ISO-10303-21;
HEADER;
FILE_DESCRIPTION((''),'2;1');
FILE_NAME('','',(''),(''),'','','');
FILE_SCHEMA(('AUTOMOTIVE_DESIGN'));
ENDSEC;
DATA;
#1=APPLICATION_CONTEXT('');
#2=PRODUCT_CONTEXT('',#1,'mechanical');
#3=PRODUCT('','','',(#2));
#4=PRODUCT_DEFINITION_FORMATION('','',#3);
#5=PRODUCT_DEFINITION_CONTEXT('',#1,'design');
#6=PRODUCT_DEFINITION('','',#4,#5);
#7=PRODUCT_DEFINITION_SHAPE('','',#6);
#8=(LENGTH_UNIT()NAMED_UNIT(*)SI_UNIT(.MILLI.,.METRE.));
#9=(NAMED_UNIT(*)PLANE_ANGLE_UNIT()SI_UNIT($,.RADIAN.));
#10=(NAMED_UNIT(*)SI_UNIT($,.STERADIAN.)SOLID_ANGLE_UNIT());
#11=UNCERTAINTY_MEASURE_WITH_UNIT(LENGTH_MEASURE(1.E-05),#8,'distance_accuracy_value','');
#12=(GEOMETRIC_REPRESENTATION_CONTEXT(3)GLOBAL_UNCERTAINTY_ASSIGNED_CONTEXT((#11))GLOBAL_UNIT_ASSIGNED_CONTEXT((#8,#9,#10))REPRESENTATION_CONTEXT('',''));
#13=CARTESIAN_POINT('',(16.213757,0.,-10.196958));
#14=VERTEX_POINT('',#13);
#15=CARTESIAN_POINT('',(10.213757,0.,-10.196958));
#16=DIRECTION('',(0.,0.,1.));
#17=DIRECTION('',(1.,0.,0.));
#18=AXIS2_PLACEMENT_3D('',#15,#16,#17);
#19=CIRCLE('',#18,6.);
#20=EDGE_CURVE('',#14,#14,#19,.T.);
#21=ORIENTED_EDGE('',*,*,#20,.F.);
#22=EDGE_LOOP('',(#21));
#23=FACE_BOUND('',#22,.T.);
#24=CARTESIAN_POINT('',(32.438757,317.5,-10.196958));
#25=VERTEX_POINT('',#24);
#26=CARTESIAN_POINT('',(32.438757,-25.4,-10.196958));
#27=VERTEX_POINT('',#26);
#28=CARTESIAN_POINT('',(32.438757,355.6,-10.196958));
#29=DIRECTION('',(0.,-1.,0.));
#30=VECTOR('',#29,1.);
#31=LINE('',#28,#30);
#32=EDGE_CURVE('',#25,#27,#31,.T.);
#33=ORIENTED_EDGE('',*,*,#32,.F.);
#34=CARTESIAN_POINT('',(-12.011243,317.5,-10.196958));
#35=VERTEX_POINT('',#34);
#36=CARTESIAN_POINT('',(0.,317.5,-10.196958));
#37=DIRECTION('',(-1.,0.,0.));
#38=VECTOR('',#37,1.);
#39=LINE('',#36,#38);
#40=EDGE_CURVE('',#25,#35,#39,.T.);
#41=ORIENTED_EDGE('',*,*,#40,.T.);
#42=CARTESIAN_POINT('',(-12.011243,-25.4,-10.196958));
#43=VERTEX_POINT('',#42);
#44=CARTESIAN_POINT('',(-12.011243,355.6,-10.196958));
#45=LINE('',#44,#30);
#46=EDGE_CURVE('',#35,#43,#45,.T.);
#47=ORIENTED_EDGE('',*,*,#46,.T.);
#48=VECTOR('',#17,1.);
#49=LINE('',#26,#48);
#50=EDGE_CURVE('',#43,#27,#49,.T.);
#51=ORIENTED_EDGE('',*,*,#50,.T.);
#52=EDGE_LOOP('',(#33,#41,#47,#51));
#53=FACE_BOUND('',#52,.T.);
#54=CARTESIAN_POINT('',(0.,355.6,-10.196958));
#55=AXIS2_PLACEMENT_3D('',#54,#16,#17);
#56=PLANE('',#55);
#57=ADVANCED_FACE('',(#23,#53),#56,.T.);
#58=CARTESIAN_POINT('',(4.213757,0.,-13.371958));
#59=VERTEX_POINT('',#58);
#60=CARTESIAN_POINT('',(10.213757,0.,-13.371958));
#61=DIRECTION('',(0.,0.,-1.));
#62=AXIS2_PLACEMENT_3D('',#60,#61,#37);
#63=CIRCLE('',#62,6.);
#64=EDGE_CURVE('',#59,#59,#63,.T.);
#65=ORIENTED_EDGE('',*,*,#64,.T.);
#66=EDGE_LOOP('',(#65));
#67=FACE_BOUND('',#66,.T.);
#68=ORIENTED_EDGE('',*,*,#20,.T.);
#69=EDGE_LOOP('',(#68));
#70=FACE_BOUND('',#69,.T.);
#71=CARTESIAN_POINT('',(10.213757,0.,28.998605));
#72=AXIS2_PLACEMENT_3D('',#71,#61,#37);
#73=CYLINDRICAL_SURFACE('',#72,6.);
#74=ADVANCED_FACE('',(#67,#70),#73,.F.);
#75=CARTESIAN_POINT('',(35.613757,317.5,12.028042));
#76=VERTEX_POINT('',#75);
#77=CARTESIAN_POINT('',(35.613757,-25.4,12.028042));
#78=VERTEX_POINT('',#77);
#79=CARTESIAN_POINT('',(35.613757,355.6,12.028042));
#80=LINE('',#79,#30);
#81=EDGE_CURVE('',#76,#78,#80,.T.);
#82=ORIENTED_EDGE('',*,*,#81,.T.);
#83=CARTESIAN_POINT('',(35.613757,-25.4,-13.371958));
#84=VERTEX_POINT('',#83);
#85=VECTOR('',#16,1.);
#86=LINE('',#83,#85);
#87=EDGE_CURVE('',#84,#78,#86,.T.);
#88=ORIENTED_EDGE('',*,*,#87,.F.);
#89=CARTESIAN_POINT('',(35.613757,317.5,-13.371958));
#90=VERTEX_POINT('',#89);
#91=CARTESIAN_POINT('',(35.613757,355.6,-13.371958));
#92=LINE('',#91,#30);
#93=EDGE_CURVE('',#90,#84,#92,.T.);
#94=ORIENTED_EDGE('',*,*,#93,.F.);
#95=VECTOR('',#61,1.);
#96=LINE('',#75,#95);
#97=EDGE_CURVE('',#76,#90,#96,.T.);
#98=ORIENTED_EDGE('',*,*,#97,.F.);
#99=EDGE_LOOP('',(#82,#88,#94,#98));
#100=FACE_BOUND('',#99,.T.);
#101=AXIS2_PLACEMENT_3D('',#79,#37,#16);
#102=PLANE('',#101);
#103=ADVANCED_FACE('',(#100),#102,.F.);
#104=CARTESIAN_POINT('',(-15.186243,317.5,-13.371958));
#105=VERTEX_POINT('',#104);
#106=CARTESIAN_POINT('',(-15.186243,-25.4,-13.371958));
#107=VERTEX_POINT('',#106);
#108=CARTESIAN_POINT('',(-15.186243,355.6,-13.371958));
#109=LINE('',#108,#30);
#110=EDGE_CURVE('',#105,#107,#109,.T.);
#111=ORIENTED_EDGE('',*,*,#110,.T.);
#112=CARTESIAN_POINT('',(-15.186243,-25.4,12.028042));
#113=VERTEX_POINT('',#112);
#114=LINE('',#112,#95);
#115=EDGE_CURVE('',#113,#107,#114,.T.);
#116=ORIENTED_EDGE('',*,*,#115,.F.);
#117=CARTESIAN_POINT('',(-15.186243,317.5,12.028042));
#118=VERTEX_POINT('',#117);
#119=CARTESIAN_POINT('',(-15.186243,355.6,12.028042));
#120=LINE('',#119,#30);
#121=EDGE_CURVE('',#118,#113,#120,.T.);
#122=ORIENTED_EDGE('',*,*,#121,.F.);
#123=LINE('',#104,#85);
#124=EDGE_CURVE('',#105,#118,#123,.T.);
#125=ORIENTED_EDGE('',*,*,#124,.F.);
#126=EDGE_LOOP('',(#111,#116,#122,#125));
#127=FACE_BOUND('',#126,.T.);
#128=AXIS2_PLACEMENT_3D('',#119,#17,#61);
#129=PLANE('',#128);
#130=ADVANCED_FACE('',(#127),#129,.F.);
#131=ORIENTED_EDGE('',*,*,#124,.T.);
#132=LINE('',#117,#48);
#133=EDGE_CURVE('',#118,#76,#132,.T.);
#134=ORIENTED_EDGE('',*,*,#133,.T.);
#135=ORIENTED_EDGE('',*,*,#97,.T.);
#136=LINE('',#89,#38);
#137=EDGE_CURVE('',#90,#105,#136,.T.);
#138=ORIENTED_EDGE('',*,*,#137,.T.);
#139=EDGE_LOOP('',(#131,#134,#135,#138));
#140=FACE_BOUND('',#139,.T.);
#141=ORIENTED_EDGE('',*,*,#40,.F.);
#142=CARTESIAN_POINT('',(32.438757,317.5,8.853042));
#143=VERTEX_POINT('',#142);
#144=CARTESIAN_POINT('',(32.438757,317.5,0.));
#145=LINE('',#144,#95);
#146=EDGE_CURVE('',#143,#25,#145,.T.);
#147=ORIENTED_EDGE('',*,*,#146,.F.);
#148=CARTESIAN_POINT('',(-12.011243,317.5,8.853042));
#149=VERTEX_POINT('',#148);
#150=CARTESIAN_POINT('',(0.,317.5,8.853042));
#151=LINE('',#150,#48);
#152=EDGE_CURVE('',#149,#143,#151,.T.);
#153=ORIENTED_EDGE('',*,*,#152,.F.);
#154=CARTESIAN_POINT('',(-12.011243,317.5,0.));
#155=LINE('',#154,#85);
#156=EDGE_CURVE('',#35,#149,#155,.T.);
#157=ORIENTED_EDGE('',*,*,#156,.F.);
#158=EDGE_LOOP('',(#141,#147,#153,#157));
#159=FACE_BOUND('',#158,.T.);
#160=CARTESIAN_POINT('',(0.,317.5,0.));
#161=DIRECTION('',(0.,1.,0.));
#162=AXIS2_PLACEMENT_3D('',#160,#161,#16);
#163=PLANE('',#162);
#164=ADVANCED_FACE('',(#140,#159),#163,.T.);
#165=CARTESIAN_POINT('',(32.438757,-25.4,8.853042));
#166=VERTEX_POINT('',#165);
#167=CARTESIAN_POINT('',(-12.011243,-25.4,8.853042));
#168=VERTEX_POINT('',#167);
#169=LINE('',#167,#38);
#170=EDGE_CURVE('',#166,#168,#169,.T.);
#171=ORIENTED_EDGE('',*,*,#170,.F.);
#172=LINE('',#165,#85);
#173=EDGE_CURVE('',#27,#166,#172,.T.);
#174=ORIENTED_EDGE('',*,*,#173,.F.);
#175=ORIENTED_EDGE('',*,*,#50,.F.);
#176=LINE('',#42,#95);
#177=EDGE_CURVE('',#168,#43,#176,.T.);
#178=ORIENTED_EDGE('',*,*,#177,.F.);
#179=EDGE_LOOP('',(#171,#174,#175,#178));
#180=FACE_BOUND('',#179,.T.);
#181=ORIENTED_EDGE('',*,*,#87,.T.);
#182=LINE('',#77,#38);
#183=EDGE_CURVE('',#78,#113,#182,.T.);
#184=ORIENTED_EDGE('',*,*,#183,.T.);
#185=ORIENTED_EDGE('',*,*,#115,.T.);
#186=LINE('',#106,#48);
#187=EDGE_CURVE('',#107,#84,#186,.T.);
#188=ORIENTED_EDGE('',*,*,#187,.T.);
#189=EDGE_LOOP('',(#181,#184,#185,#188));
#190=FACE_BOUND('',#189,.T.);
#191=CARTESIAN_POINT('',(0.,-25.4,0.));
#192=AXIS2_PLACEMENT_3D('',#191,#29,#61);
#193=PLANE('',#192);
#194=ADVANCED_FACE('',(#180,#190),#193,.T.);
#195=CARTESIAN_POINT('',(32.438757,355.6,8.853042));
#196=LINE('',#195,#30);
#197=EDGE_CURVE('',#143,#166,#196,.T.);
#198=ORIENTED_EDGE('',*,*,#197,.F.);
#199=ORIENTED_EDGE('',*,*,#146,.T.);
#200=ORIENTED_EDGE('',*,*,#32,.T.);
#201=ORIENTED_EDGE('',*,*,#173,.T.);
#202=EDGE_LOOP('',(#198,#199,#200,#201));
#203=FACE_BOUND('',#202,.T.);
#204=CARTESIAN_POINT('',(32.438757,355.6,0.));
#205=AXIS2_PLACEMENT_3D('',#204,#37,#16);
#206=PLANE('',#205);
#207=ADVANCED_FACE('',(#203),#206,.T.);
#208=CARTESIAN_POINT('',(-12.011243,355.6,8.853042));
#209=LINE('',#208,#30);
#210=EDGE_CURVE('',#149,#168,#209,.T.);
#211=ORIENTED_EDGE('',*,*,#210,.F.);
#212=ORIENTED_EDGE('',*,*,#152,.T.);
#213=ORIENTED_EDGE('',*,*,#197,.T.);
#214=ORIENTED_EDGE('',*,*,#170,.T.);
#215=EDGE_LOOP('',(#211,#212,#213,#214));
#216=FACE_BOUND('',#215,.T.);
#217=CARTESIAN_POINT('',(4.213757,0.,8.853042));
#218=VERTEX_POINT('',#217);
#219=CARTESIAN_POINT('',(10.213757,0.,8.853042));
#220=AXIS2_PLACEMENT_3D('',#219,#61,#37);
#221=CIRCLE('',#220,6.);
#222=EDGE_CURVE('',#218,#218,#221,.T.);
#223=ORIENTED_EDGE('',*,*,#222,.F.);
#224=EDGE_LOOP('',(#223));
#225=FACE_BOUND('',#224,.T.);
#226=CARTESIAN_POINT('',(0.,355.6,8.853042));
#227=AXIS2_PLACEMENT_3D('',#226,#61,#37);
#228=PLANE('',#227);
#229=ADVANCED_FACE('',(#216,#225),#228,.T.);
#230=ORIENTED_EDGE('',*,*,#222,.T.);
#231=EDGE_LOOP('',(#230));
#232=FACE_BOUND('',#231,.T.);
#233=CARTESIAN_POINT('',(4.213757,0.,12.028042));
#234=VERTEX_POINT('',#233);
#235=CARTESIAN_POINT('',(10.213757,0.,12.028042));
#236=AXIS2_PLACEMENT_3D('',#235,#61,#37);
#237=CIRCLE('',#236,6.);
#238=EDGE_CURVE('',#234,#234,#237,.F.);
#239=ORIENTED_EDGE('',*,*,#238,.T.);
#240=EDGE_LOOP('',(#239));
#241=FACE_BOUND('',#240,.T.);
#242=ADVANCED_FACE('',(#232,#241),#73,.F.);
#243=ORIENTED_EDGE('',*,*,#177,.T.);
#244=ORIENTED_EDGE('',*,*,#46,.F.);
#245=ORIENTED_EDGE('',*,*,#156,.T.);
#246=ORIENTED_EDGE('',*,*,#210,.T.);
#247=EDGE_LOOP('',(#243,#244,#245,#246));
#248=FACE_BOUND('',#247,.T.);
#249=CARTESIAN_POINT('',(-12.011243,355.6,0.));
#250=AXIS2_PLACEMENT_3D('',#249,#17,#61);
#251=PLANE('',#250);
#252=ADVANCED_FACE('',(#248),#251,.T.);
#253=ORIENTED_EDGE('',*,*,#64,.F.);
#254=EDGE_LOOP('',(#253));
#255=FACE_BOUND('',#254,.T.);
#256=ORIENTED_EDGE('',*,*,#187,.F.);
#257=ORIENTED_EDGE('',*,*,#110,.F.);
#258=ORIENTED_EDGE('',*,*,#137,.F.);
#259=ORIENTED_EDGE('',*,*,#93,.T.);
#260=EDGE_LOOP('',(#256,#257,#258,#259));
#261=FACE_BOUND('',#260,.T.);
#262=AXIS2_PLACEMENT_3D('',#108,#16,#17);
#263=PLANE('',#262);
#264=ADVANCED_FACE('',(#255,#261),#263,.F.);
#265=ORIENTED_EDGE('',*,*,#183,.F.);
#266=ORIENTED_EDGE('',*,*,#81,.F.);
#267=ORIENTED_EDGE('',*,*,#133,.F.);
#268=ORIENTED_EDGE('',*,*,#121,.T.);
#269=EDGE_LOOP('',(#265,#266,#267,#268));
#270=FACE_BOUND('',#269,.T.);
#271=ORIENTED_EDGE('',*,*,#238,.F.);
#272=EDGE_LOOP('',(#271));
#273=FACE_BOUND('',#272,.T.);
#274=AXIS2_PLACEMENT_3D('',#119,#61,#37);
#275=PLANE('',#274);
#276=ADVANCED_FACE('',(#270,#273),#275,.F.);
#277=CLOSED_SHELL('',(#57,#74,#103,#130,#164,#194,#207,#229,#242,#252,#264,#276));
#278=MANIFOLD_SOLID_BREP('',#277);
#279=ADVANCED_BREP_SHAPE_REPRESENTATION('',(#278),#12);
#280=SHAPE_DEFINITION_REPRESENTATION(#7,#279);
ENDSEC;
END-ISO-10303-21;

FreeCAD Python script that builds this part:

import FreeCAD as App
import Part
import Sketcher
Q = App.Units.Quantity

doc = App.newDocument("Part")
body = doc.addObject("PartDesign::Body", "Body")

# Sketch on XZ plane
sketch1 = body.newObject("Sketcher::SketchObject", "Sketch")
sketch1.AttachmentSupport = (doc.getObject("XZ_Plane"), [""])
sketch1.MapMode = "FlatFace"
sketch1.addGeometry([
    Part.LineSegment(App.Vector(-15, -13, 0), App.Vector(-15, 12, 0)),  # 0
    Part.LineSegment(App.Vector(-15, 12, 0), App.Vector(36, 12, 0)),  # 1
    Part.LineSegment(App.Vector(36, 12, 0), App.Vector(36, -13, 0)),  # 2
    Part.LineSegment(App.Vector(36, -13, 0), App.Vector(-15, -13, 0)),  # 3
    Part.LineSegment(App.Vector(32, 9, 0), App.Vector(-12, 9, 0)),  # 4
    Part.LineSegment(App.Vector(-12, 9, 0), App.Vector(-12, -10, 0)),  # 5
    Part.LineSegment(App.Vector(-12, -10, 0), App.Vector(32, -10, 0)),  # 6
    Part.LineSegment(App.Vector(32, -10, 0), App.Vector(32, 9, 0)),  # 7
], False)
sketch1.addConstraint([
    Sketcher.Constraint("Coincident", 0, 2, 1, 1),
    Sketcher.Constraint("Coincident", 1, 2, 2, 1),
    Sketcher.Constraint("Coincident", 2, 2, 3, 1),
    Sketcher.Constraint("Coincident", 3, 2, 0, 1),
    Sketcher.Constraint("Coincident", 4, 2, 5, 1),
    Sketcher.Constraint("Coincident", 5, 2, 6, 1),
    Sketcher.Constraint("Coincident", 6, 2, 7, 1),
    Sketcher.Constraint("Coincident", 7, 2, 4, 1),
    Sketcher.Constraint("Vertical", 0),
    Sketcher.Constraint("Horizontal", 1),
    Sketcher.Constraint("Vertical", 2),
    Sketcher.Constraint("Horizontal", 3),
    Sketcher.Constraint("Horizontal", 4),
    Sketcher.Constraint("Vertical", 5),
    Sketcher.Constraint("Horizontal", 6),
    Sketcher.Constraint("Vertical", 7),
    Sketcher.Constraint("DistanceX", 1, 1, 1, 2, Q("2 in")),
    Sketcher.Constraint("DistanceY", 0, 1, 0, 2, Q("1 in")),
    Sketcher.Constraint("DistanceX", 4, 2, 4, 1, Q("1.75 in")),
    Sketcher.Constraint("DistanceY", 5, 2, 5, 1, Q("0.75 in")),
    Sketcher.Constraint("DistanceX", 0, 2, 4, 2, Q("0.125 in")),
    Sketcher.Constraint("DistanceY", 4, 2, 0, 2, Q("0.125 in")),
    Sketcher.Constraint("DistanceX", 0, 2, -1, 1, 15.186243),
    Sketcher.Constraint("DistanceY", -1, 1, 0, 2, 12.028042),
])
pad1 = body.newObject("PartDesign::Pad", "Pad")
pad1.Profile = sketch1
pad1.Length = Q("14 in")
pad1.Reversed = True

# Sketch on XZ plane
sketch2 = body.newObject("Sketcher::SketchObject", "Sketch001")
sketch2.AttachmentSupport = (doc.getObject("XZ_Plane"), [""])
sketch2.MapMode = "FlatFace"
sketch2.addGeometry([
    Part.LineSegment(App.Vector(-15, 12, 0), App.Vector(-15, -13, 0)),  # 0
    Part.LineSegment(App.Vector(-15, -13, 0), App.Vector(36, -13, 0)),  # 1
    Part.LineSegment(App.Vector(36, -13, 0), App.Vector(36, 12, 0)),  # 2
    Part.LineSegment(App.Vector(36, 12, 0), App.Vector(-15, 12, 0)),  # 3
    Part.LineSegment(App.Vector(32, -10, 0), App.Vector(-12, -10, 0)),  # 4
    Part.LineSegment(App.Vector(-12, -10, 0), App.Vector(-12, 9, 0)),  # 5
    Part.LineSegment(App.Vector(-12, 9, 0), App.Vector(32, 9, 0)),  # 6
    Part.LineSegment(App.Vector(32, 9, 0), App.Vector(32, -10, 0)),  # 7
], False)
sketch2.addConstraint([
    Sketcher.Constraint("Coincident", 0, 2, 1, 1),
    Sketcher.Constraint("Coincident", 1, 2, 2, 1),
    Sketcher.Constraint("Coincident", 2, 2, 3, 1),
    Sketcher.Constraint("Coincident", 3, 2, 0, 1),
    Sketcher.Constraint("Coincident", 4, 2, 5, 1),
    Sketcher.Constraint("Coincident", 5, 2, 6, 1),
    Sketcher.Constraint("Coincident", 6, 2, 7, 1),
    Sketcher.Constraint("Coincident", 7, 2, 4, 1),
    Sketcher.Constraint("Vertical", 0),
    Sketcher.Constraint("Horizontal", 1),
    Sketcher.Constraint("Vertical", 2),
    Sketcher.Constraint("Horizontal", 3),
    Sketcher.Constraint("Horizontal", 4),
    Sketcher.Constraint("Vertical", 5),
    Sketcher.Constraint("Horizontal", 6),
    Sketcher.Constraint("Vertical", 7),
    Sketcher.Constraint("DistanceX", 1, 1, 1, 2, Q("2 in")),
    Sketcher.Constraint("DistanceY", 0, 2, 0, 1, Q("1 in")),
    Sketcher.Constraint("DistanceX", 4, 2, 4, 1, Q("1.75 in")),
    Sketcher.Constraint("DistanceY", 5, 1, 5, 2, Q("0.75 in")),
    Sketcher.Constraint("DistanceX", 0, 2, 4, 2, Q("0.125 in")),
    Sketcher.Constraint("DistanceY", 0, 2, 4, 2, Q("0.125 in")),
    Sketcher.Constraint("DistanceX", 0, 2, -1, 1, 15.186243),
    Sketcher.Constraint("DistanceY", 0, 2, -1, 1, 13.371958),
])
pad2 = body.newObject("PartDesign::Pad", "Pad001")
pad2.Profile = sketch2
pad2.Length = Q("1 in")

# Sketch on XY plane
sketch3 = body.newObject("Sketcher::SketchObject", "Sketch002")
sketch3.AttachmentSupport = (doc.getObject("XY_Plane"), [""])
sketch3.MapMode = "FlatFace"
sketch3.AttachmentOffset = App.Placement(App.Vector(0, 0, 12.028042), App.Rotation())
sketch3.addGeometry(Part.Circle(App.Vector(10, 0, 0), App.Vector(0, 0, 1), 6), False)
sketch3.addConstraint([
    Sketcher.Constraint("PointOnObject", 0, 3, -1),
    Sketcher.Constraint("Diameter", 0, 12.0),
    Sketcher.Constraint("DistanceX", -1, 1, 0, 3, 10.213757),
])
pocket1 = body.newObject("PartDesign::Pocket", "Pocket")
pocket1.Profile = sketch3
pocket1.Length = Q("1 in")

# Sketch on XZ plane
sketch4 = body.newObject("Sketcher::SketchObject", "Sketch003")
sketch4.AttachmentSupport = (doc.getObject("XZ_Plane"), [""])
sketch4.MapMode = "FlatFace"
sketch4.AttachmentOffset = App.Placement(App.Vector(0, 0, -14 * 25.4), App.Rotation())
sketch4.addGeometry([
    Part.LineSegment(App.Vector(-15, -13, 0), App.Vector(-15, 12, 0)),
    Part.LineSegment(App.Vector(-15, 12, 0), App.Vector(36, 12, 0)),
    Part.LineSegment(App.Vector(36, 12, 0), App.Vector(36, -13, 0)),
    Part.LineSegment(App.Vector(36, -13, 0), App.Vector(-15, -13, 0)),
], False)
sketch4.addConstraint([
    Sketcher.Constraint("Coincident", 0, 2, 1, 1),
    Sketcher.Constraint("Coincident", 1, 2, 2, 1),
    Sketcher.Constraint("Coincident", 2, 2, 3, 1),
    Sketcher.Constraint("Coincident", 3, 2, 0, 1),
    Sketcher.Constraint("Vertical", 0),
    Sketcher.Constraint("Horizontal", 1),
    Sketcher.Constraint("Vertical", 2),
    Sketcher.Constraint("Horizontal", 3),
    Sketcher.Constraint("DistanceX", 1, 1, 1, 2, Q("2 in")),
    Sketcher.Constraint("DistanceY", 0, 1, 0, 2, Q("1 in")),
    Sketcher.Constraint("DistanceX", 0, 2, -1, 1, 15.186243),
    Sketcher.Constraint("DistanceY", -1, 1, 0, 2, 12.028042),
])
pocket2 = body.newObject("PartDesign::Pocket", "Pocket001")
pocket2.Profile = sketch4
pocket2.Length = Q("1.5 in")
pocket2.Reversed = True

doc.recompute()
